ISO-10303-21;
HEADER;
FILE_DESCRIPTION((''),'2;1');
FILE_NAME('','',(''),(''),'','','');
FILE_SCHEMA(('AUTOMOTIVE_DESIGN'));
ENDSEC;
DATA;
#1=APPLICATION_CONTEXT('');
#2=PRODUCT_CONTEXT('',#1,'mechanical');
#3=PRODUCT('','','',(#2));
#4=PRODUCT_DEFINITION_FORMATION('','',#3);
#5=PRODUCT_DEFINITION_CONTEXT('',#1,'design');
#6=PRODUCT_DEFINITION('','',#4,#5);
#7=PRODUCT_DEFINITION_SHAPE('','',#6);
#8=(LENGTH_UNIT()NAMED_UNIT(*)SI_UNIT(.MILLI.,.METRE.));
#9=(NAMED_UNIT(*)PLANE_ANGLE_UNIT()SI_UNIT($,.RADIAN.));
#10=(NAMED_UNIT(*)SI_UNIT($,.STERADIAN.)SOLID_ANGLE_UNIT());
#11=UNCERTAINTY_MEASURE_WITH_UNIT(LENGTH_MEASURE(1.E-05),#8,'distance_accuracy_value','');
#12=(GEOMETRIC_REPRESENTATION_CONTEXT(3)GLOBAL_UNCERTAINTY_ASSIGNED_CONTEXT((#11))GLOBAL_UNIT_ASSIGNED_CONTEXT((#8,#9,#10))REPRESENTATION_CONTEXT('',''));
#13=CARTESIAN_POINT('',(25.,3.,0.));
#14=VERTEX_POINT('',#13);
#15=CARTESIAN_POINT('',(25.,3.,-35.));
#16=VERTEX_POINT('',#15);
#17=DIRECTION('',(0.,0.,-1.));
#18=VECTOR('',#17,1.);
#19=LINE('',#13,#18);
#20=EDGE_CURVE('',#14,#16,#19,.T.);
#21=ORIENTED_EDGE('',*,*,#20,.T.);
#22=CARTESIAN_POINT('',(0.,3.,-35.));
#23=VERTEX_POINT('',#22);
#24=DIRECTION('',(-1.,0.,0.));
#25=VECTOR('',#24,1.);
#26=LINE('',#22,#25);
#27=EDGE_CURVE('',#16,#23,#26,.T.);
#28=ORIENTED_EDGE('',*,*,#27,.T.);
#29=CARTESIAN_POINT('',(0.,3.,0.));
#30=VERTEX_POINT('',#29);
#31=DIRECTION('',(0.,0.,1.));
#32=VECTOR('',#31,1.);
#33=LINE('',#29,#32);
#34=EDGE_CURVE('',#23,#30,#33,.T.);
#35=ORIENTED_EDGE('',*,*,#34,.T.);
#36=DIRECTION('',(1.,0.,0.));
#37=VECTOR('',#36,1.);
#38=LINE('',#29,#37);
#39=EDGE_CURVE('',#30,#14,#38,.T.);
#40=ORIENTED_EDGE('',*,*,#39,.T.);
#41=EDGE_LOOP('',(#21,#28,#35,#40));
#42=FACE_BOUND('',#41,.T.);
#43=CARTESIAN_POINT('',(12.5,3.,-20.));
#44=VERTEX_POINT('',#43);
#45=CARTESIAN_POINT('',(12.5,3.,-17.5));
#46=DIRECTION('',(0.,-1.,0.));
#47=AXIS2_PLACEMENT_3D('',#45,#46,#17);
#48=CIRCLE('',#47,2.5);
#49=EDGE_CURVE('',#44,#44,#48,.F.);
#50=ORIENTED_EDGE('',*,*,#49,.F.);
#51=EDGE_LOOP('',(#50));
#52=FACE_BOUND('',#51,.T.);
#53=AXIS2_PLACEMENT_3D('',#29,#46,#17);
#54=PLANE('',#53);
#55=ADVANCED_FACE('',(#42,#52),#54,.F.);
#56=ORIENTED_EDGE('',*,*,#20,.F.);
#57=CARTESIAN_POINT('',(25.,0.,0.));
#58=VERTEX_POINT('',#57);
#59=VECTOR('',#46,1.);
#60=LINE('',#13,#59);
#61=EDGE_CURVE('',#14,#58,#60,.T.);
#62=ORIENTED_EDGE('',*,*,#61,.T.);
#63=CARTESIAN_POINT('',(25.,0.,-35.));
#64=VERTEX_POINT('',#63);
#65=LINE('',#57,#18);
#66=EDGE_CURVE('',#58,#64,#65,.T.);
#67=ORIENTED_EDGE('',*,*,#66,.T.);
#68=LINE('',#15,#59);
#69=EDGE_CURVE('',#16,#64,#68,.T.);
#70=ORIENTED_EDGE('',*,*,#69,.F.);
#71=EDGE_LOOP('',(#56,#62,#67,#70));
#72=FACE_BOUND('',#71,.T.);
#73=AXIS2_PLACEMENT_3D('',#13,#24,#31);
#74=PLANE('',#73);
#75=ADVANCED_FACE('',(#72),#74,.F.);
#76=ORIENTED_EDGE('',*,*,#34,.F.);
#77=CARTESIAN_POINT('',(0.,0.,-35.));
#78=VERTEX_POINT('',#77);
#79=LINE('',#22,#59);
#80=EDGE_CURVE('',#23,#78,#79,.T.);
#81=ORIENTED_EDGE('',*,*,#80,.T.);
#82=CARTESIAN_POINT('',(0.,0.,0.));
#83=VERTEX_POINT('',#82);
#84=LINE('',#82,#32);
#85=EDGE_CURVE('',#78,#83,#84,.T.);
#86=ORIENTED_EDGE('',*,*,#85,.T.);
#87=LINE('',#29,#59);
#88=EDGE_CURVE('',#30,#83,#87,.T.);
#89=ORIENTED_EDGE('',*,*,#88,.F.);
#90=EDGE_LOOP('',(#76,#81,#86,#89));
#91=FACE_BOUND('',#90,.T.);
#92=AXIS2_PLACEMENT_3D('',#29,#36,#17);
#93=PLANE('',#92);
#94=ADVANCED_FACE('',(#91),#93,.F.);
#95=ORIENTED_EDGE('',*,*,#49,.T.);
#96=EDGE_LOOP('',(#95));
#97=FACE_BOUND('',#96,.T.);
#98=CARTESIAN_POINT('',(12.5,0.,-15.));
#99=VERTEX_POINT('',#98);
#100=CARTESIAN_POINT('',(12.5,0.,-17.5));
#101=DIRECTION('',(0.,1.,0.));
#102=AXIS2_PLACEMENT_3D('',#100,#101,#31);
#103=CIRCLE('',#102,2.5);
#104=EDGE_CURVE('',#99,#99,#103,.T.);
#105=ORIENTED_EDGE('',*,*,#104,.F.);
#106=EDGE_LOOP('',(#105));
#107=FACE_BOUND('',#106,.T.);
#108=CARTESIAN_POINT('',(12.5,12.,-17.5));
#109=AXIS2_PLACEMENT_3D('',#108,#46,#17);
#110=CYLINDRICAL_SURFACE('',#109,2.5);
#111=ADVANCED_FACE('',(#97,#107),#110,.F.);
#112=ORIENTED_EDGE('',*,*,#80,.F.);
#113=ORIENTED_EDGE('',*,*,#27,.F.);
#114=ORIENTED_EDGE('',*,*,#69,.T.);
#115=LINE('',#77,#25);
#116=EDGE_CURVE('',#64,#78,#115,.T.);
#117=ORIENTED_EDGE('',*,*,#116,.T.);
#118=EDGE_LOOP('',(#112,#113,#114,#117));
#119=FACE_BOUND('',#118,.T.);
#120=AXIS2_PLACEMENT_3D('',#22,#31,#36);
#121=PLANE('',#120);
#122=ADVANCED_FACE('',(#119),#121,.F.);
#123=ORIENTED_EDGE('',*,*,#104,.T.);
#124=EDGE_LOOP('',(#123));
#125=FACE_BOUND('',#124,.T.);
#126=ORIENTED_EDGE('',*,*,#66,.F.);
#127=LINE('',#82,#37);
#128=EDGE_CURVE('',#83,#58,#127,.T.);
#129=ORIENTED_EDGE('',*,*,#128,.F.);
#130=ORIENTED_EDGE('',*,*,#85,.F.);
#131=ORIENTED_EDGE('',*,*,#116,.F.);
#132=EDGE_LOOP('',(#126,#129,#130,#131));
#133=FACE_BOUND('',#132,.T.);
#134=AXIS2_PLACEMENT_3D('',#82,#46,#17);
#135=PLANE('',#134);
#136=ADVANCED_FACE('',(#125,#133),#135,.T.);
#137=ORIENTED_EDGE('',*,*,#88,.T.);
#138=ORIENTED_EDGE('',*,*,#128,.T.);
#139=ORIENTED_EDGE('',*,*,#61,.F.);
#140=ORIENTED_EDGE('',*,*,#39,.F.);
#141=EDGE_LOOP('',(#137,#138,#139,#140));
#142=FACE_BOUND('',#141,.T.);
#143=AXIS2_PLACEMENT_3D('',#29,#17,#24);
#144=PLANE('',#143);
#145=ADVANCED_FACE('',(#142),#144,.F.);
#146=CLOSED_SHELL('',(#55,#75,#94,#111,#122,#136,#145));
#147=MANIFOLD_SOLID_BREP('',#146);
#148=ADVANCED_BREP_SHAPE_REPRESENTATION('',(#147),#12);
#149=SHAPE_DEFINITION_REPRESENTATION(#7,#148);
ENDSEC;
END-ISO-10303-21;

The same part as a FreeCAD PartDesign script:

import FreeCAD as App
import Part
import Sketcher

V = App.Vector
Q = App.Units.Quantity

doc = App.newDocument("Part")
params = doc.addObject("Spreadsheet::Sheet", "Params")
for row, (alias, value) in enumerate([
    ("sketch1_width", "25 mm"),
    ("sketch1_height", "35 mm"),
    ("pad1_length", "3 mm"),
    ("sketch2_diameter", "5 mm"),
    ("pocket1_length", "12 mm"),
], start=1):
    params.set(f"A{row}", alias)
    params.set(f"B{row}", "=" + value)
    params.setAlias(f"B{row}", alias)

body = doc.addObject("PartDesign::Body", "Body")

# Sketch on XZ plane
sketch1 = body.newObject("Sketcher::SketchObject", "Sketch")
sketch1.AttachmentSupport = (doc.getObject("XZ_Plane"), [""])
sketch1.MapMode = "FlatFace"
sketch1.addGeometry([
    Part.LineSegment(V(0, -35, 0), V(0, 0, 0)),
    Part.LineSegment(V(0, 0, 0), V(25, 0, 0)),
    Part.LineSegment(V(25, 0, 0), V(25, -35, 0)),
    Part.LineSegment(V(25, -35, 0), V(0, -35, 0)),
], False)
sketch1.addConstraint([
    Sketcher.Constraint("Coincident", 0, 2, 1, 1),
    Sketcher.Constraint("Coincident", 1, 2, 2, 1),
    Sketcher.Constraint("Coincident", 2, 2, 3, 1),
    Sketcher.Constraint("Coincident", 3, 2, 0, 1),
    Sketcher.Constraint("Vertical", 0),
    Sketcher.Constraint("Horizontal", 1),
    Sketcher.Constraint("Vertical", 2),
    Sketcher.Constraint("Horizontal", 3),
    Sketcher.Constraint("Coincident", 0, 2, -1, 1),
    Sketcher.Constraint("DistanceX", 1, 1, 1, 2, Q("25 mm")),
    Sketcher.Constraint("DistanceY", 0, 1, 0, 2, Q("35 mm")),
])
sketch1.setExpression("Constraints[9]", "Params.sketch1_width")
sketch1.setExpression("Constraints[10]", "Params.sketch1_height")
pad1 = body.newObject("PartDesign::Pad", "Pad")
pad1.Profile = sketch1
pad1.setExpression("Length", "Params.pad1_length")
pad1.Reversed = True

# Sketch on XZ plane
sketch2 = body.newObject("Sketcher::SketchObject", "Sketch001")
sketch2.AttachmentSupport = (doc.getObject("XZ_Plane"), [""])
sketch2.MapMode = "FlatFace"
sketch2.addGeometry(Part.Circle(V(12.5, -17.5, 0), V(0, 0, 1), 2.5), False)
sketch2.addConstraint([
    Sketcher.Constraint("Diameter", 0, Q("5 mm")),
    Sketcher.Constraint("DistanceX", -1, 1, 0, 3, Q("12.5 mm")),
    Sketcher.Constraint("DistanceY", 0, 3, -1, 1, Q("17.5 mm")),
])
sketch2.setExpression("Constraints[0]", "Params.sketch2_diameter")
pocket1 = body.newObject("PartDesign::Pocket", "Pocket")
pocket1.Profile = sketch2
pocket1.setExpression("Length", "Params.pocket1_length")

doc.recompute()
